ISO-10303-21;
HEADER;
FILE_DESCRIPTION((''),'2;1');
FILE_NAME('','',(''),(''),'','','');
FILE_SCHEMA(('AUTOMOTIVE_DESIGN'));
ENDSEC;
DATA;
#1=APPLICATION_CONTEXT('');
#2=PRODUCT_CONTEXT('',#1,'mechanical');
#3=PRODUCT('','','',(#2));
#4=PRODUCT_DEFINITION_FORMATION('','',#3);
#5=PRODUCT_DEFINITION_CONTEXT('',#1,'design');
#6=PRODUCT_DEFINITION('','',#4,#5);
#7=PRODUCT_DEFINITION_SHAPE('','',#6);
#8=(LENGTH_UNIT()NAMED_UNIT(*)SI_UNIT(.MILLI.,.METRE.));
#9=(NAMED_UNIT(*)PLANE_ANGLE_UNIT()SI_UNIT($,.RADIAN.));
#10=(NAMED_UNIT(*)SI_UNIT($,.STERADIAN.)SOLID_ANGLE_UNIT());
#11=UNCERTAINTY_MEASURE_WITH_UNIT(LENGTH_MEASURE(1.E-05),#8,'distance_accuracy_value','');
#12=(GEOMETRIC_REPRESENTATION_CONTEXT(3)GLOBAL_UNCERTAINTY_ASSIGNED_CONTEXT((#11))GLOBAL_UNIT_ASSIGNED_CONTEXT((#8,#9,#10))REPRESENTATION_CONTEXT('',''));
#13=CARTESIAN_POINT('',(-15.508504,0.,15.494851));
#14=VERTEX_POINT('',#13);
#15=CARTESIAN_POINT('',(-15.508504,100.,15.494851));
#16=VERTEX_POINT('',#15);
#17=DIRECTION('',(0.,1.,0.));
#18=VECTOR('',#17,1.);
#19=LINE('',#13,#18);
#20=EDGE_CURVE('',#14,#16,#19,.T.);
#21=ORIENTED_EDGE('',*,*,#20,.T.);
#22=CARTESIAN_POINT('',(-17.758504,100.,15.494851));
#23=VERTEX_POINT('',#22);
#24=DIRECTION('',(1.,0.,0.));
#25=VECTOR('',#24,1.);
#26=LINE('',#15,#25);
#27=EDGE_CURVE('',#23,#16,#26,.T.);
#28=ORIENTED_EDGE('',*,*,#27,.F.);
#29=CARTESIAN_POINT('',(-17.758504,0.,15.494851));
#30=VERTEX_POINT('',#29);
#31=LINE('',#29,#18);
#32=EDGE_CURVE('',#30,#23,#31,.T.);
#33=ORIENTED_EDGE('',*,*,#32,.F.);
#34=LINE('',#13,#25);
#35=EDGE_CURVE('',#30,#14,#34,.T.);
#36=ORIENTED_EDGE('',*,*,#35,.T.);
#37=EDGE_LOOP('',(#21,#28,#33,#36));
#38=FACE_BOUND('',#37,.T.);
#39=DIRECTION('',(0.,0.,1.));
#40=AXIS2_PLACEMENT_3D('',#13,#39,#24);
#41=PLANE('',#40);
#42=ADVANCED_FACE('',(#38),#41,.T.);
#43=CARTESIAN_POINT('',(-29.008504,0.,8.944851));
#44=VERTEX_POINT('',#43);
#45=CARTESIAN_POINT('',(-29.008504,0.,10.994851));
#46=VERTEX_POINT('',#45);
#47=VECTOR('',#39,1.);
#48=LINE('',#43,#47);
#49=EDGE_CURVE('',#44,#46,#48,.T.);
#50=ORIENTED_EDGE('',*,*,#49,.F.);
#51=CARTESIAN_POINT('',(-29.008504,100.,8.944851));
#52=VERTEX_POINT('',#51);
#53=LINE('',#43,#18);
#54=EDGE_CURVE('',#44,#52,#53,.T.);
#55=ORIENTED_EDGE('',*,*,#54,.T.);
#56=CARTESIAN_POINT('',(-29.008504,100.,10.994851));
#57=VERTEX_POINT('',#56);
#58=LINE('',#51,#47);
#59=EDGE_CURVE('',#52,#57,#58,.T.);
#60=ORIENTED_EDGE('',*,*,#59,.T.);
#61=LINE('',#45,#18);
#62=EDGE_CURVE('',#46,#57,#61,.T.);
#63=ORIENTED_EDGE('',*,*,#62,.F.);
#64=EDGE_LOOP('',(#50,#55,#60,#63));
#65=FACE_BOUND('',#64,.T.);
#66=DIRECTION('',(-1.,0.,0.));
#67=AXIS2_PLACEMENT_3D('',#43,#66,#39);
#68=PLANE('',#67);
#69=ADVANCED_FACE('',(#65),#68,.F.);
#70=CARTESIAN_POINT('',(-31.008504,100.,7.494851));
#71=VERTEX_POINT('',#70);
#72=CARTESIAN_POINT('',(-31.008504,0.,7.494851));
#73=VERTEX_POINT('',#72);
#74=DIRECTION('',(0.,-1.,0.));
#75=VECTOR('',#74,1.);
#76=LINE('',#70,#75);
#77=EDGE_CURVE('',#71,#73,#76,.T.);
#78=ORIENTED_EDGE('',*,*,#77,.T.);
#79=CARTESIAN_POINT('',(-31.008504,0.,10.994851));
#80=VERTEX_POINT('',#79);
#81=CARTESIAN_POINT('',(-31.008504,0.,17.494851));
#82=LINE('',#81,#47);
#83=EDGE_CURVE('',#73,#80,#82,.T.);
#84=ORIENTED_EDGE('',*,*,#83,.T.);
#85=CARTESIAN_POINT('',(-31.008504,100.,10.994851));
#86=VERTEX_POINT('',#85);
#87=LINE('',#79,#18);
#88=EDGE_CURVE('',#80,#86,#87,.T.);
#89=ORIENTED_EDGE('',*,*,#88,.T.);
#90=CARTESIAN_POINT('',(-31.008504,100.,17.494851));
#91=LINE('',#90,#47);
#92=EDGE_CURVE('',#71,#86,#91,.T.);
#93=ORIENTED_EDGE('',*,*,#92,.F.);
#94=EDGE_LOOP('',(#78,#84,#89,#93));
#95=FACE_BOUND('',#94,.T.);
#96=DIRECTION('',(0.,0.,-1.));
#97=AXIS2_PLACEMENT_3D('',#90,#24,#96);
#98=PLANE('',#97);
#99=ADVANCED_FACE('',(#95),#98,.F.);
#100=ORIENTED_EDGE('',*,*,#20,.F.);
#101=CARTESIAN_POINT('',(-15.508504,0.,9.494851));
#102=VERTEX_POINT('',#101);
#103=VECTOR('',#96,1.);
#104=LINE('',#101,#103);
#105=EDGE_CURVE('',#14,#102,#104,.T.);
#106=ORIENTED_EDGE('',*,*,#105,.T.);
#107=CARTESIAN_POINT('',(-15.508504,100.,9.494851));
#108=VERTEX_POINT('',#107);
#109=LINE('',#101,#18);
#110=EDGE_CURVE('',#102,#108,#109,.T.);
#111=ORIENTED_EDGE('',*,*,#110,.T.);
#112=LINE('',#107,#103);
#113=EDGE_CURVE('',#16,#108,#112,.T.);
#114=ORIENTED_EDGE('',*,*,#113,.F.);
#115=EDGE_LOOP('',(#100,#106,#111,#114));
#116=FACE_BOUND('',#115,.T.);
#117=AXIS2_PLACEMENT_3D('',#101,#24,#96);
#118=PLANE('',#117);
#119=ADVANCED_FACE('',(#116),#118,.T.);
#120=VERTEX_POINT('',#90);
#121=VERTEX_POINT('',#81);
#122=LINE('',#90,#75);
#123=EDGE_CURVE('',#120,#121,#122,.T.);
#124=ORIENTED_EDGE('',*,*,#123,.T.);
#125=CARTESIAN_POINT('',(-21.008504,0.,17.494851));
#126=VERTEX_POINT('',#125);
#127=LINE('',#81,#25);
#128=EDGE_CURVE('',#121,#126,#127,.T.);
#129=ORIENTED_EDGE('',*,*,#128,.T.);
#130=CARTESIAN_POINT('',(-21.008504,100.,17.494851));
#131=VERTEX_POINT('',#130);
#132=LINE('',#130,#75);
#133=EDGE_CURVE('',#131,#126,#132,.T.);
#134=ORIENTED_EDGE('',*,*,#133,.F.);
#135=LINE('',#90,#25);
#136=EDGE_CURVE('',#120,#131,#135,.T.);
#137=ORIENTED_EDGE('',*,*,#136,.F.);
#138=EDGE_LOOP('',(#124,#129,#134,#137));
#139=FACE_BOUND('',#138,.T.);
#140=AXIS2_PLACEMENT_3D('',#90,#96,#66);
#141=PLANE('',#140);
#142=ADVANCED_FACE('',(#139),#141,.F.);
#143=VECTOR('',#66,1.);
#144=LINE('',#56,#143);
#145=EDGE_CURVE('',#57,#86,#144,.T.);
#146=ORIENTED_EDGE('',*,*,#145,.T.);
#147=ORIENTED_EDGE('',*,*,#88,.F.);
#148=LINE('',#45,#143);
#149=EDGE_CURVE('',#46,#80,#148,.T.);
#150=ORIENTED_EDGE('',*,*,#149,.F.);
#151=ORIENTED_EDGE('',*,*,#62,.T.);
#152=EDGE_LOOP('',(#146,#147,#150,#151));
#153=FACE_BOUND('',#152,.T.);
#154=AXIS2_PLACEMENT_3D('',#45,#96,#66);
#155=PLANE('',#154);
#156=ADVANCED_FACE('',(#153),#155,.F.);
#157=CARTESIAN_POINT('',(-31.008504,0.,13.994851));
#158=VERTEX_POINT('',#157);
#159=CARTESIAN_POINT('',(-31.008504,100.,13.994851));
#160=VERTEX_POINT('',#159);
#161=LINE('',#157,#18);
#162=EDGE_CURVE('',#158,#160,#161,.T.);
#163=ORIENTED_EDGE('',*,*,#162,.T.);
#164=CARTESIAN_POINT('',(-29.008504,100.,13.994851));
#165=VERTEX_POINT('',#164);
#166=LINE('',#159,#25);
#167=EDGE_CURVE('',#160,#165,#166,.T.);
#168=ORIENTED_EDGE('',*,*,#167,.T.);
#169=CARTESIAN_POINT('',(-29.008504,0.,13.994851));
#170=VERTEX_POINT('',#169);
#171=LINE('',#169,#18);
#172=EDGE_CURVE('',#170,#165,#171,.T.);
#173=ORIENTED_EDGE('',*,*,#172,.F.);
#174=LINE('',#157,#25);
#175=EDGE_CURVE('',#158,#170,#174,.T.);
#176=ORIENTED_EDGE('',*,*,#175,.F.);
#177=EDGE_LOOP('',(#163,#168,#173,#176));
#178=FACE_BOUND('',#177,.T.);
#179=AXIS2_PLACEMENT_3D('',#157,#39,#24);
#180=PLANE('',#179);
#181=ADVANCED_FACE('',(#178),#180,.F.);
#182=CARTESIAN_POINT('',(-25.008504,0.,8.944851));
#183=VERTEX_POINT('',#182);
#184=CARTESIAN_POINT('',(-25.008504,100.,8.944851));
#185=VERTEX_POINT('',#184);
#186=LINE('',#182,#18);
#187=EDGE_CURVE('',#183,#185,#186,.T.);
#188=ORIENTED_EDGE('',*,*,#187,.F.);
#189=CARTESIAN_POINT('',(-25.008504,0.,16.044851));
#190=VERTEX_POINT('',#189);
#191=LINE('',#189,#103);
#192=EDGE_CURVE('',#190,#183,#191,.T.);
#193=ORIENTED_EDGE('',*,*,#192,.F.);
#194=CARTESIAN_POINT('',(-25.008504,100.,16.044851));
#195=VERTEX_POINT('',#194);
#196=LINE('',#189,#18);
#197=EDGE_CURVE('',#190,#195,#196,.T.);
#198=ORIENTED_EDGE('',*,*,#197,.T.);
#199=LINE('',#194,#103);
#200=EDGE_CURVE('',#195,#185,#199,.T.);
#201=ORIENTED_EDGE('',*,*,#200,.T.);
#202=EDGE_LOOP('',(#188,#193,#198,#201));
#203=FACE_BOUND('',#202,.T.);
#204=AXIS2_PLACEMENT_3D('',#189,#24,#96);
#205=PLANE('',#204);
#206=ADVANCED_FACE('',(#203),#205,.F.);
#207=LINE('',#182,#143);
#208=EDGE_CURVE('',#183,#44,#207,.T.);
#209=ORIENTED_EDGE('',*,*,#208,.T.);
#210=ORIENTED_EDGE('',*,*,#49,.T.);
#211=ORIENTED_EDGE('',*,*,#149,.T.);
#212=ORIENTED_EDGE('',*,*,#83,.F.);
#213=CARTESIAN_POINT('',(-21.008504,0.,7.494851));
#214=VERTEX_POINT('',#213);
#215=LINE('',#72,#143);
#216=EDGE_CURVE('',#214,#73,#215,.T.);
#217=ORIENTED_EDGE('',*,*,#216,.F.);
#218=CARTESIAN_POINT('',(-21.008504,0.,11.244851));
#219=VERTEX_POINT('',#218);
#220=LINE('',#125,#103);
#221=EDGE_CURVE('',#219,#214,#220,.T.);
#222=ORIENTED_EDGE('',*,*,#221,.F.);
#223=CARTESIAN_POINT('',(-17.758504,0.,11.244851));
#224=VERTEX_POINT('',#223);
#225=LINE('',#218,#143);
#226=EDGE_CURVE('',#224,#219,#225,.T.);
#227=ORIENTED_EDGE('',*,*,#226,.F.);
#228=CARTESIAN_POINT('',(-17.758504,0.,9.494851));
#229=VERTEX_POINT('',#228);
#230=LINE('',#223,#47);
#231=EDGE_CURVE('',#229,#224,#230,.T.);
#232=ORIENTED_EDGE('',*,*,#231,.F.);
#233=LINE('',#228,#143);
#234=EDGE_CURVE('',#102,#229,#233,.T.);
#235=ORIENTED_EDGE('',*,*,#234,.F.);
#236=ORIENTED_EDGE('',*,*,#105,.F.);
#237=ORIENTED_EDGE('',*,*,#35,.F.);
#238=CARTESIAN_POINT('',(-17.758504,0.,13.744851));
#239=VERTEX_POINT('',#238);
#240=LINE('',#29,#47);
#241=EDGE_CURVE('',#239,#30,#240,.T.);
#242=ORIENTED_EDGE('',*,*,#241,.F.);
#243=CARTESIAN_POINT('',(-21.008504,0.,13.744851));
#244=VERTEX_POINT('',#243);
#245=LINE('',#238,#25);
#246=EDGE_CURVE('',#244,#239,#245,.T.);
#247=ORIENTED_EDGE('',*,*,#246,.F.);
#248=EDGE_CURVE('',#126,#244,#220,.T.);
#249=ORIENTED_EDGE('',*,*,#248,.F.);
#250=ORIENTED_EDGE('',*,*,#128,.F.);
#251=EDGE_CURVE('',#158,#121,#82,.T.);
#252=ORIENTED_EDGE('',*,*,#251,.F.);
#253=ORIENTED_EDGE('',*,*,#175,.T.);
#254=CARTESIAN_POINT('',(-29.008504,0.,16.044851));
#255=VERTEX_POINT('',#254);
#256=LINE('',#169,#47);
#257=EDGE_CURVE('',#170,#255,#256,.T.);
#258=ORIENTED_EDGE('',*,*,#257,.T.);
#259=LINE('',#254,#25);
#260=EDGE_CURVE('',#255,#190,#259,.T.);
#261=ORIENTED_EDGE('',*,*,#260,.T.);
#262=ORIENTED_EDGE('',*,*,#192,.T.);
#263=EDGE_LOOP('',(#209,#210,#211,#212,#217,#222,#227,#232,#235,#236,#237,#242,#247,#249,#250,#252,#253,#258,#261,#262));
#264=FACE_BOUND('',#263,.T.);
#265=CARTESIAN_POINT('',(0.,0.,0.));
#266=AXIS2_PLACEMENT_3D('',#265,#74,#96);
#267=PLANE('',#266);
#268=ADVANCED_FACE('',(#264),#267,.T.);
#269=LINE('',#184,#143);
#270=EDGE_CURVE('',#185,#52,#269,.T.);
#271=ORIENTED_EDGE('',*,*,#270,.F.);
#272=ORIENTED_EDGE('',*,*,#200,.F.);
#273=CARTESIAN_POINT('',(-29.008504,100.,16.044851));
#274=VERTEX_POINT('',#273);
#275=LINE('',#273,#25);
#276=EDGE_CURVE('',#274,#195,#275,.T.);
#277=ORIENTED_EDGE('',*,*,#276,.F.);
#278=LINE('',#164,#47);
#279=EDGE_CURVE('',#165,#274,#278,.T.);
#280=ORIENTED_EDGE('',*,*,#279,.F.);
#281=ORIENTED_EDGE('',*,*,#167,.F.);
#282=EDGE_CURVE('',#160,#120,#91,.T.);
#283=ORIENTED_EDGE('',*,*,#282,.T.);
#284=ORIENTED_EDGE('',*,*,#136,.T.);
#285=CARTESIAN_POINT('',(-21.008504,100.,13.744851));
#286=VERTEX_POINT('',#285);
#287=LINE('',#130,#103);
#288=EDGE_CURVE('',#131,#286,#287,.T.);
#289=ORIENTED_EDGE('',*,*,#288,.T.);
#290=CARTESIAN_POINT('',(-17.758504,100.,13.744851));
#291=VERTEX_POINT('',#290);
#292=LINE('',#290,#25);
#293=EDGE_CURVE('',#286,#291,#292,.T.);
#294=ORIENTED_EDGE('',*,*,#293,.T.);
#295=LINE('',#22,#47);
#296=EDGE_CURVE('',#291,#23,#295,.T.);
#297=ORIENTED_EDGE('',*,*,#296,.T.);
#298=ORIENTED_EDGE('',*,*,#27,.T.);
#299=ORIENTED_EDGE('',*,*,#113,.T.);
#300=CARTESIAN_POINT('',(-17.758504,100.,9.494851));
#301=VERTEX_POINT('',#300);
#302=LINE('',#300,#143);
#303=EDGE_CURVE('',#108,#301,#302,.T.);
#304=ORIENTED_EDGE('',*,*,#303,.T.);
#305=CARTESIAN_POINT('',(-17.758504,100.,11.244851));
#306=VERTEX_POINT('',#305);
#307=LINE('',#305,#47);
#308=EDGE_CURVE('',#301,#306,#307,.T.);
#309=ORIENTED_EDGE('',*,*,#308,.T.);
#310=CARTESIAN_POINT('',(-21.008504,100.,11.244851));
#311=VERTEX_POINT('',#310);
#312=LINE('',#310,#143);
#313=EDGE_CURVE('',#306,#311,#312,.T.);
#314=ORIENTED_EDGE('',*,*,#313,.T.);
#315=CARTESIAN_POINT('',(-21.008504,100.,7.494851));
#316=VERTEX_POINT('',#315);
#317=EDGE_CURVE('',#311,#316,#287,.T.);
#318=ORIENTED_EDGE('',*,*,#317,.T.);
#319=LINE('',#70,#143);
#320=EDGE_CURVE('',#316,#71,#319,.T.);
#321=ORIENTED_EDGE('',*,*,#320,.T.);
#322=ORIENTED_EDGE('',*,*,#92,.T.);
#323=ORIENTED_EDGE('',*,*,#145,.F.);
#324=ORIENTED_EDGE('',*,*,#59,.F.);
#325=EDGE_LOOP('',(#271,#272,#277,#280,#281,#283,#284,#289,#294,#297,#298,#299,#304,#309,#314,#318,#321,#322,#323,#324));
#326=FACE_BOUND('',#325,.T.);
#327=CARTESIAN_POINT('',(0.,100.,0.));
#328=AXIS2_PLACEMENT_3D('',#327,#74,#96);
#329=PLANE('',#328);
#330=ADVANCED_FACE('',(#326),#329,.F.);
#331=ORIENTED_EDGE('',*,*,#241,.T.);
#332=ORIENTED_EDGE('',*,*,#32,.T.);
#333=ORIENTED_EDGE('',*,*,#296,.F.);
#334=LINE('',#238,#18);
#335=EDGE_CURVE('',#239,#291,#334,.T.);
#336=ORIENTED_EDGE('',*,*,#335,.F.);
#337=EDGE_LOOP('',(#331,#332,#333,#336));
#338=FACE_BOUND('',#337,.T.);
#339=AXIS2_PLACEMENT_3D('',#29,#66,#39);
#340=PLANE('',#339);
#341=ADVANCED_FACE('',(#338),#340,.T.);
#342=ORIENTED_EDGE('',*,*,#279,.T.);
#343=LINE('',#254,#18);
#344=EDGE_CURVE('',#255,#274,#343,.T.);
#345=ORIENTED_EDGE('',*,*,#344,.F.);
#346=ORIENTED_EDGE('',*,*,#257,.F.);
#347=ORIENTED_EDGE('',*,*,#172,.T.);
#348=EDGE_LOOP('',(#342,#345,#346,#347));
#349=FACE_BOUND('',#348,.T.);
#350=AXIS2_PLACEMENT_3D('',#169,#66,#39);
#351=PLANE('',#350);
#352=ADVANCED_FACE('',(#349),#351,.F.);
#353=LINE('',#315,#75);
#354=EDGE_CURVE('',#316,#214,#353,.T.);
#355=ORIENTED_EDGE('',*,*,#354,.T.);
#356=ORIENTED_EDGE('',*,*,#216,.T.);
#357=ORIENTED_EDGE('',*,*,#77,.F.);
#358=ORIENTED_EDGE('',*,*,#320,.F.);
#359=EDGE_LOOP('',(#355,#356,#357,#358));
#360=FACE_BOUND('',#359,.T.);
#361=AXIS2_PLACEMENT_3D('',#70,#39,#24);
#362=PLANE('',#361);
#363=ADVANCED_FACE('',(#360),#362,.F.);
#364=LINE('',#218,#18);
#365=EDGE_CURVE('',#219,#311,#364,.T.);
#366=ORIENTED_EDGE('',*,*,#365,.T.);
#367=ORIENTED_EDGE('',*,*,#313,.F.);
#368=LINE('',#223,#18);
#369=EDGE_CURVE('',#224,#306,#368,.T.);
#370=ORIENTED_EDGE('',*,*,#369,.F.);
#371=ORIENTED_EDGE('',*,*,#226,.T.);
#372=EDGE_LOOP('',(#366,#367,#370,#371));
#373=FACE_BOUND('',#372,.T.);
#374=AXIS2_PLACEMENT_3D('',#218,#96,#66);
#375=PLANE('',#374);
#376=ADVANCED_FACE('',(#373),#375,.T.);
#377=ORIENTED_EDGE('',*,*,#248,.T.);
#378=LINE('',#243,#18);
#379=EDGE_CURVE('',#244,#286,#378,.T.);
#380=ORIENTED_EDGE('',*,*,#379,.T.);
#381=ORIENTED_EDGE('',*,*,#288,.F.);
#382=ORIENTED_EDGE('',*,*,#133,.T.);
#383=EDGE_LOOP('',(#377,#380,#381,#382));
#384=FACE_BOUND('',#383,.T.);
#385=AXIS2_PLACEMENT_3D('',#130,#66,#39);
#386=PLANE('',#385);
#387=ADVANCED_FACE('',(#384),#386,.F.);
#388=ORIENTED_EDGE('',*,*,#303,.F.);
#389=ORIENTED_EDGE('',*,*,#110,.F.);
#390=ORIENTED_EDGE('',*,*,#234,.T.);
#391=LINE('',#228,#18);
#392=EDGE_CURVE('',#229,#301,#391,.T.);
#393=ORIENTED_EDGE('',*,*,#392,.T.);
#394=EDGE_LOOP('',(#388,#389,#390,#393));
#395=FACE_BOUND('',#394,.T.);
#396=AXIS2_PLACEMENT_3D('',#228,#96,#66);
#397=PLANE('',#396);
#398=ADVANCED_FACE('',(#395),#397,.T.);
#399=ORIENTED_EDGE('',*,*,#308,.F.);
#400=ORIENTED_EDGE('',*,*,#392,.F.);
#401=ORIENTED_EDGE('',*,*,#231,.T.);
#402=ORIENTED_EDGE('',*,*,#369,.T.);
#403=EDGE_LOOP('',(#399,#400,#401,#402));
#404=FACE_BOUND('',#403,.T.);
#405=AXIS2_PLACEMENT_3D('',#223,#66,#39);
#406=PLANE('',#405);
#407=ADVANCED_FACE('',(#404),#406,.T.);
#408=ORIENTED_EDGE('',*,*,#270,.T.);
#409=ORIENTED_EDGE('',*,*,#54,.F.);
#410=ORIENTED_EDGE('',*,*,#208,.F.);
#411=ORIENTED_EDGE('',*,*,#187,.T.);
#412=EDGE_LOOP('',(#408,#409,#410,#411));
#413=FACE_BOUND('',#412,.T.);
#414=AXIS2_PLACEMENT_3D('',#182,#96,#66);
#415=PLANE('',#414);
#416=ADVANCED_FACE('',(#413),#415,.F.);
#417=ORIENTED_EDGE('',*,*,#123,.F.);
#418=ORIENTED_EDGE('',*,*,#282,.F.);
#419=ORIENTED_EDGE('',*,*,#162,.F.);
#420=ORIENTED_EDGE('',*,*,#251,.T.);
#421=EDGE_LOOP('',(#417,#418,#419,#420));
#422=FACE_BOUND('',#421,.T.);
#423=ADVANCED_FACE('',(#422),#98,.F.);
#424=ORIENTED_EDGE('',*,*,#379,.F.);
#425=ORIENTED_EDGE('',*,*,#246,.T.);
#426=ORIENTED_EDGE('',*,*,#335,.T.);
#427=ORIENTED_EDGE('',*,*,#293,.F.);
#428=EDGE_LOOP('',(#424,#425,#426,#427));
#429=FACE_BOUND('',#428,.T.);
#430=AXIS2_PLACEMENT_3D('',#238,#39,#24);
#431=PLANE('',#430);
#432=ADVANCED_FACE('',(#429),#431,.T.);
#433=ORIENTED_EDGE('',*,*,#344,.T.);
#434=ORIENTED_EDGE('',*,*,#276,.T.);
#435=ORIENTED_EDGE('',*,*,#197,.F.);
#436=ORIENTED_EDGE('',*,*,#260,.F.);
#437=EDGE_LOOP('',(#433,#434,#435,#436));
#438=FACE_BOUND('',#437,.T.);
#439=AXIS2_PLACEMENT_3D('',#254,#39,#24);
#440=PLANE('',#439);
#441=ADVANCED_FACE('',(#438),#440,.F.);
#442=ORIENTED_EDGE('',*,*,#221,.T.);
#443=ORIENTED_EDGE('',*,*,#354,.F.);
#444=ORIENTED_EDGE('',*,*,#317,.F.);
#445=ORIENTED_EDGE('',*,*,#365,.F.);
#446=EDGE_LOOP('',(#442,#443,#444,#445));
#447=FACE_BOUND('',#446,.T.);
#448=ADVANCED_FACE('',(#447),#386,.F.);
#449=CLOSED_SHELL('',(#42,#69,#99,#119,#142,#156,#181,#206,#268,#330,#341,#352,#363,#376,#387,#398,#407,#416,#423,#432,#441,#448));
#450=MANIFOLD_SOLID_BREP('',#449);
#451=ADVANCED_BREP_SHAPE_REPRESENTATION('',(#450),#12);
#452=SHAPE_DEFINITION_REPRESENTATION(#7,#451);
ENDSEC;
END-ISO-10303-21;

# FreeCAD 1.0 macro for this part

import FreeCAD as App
import Part
import Sketcher

V = App.Vector

doc = App.newDocument("Part")
body = doc.addObject("PartDesign::Body", "Body")

sketch1 = body.newObject("Sketcher::SketchObject", "Sketch")
sketch1.AttachmentSupport = (doc.getObject("XZ_Plane"), [""])
sketch1.MapMode = "FlatFace"
sketch1.addGeometry([
    Part.LineSegment(V(-31, 7, 0), V(-31, 17, 0)),
    Part.LineSegment(V(-31, 17, 0), V(-21, 17, 0)),
    Part.LineSegment(V(-21, 17, 0), V(-21, 7, 0)),
    Part.LineSegment(V(-21, 7, 0), V(-31, 7, 0)),
], False)
sketch1.addConstraint([
    Sketcher.Constraint("Coincident", 0, 2, 1, 1),
    Sketcher.Constraint("Coincident", 1, 2, 2, 1),
    Sketcher.Constraint("Coincident", 2, 2, 3, 1),
    Sketcher.Constraint("Coincident", 3, 2, 0, 1),
    Sketcher.Constraint("Vertical", 0),
    Sketcher.Constraint("Horizontal", 1),
    Sketcher.Constraint("Vertical", 2),
    Sketcher.Constraint("Horizontal", 3),
    Sketcher.Constraint("Equal", 3, 0),
    Sketcher.Constraint("DistanceX", 1, 1, 1, 2, 10.0),
    Sketcher.Constraint("DistanceY", -1, 1, 0, 2, 17.494851),
    Sketcher.Constraint("DistanceX", 0, 2, -1, 1, 31.008504),
])
pad1 = body.newObject("PartDesign::Pad", "Pad")
pad1.Profile = sketch1
pad1.Length = 100
pad1.Reversed = True

sketch2 = body.newObject("Sketcher::SketchObject", "Sketch001")
sketch2.AttachmentSupport = (doc.getObject("XZ_Plane"), [""])
sketch2.MapMode = "FlatFace"
sketch2.AttachmentOffset = App.Placement(V(0, 0, -100), App.Rotation())
sketch2.addGeometry([
    Part.LineSegment(V(-17.8, 11.2, 0), V(-21, 11.2, 0)),
    Part.LineSegment(V(-21, 11.2, 0), V(-21, 13.7, 0)),
    Part.LineSegment(V(-21, 13.7, 0), V(-17.8, 13.7, 0)),
    Part.LineSegment(V(-17.8, 13.7, 0), V(-17.8, 15.5, 0)),
    Part.LineSegment(V(-17.8, 15.5, 0), V(-15.5, 15.5, 0)),
    Part.LineSegment(V(-15.5, 15.5, 0), V(-15.5, 9.5, 0)),
    Part.LineSegment(V(-15.5, 9.5, 0), V(-17.8, 9.5, 0)),
    Part.LineSegment(V(-17.8, 9.5, 0), V(-17.8, 11.2, 0)),
], False)
sketch2.addConstraint([
    Sketcher.Constraint("Coincident", 0, 2, 1, 1),
    Sketcher.Constraint("Coincident", 1, 2, 2, 1),
    Sketcher.Constraint("Coincident", 2, 2, 3, 1),
    Sketcher.Constraint("Coincident", 3, 2, 4, 1),
    Sketcher.Constraint("Coincident", 4, 2, 5, 1),
    Sketcher.Constraint("Coincident", 5, 2, 6, 1),
    Sketcher.Constraint("Coincident", 6, 2, 7, 1),
    Sketcher.Constraint("Coincident", 7, 2, 0, 1),
    Sketcher.Constraint("Horizontal", 0),
    Sketcher.Constraint("Vertical", 1),
    Sketcher.Constraint("Horizontal", 2),
    Sketcher.Constraint("Vertical", 3),
    Sketcher.Constraint("Horizontal", 4),
    Sketcher.Constraint("Vertical", 5),
    Sketcher.Constraint("Horizontal", 6),
    Sketcher.Constraint("Vertical", 7),
    Sketcher.Constraint("Vertical", 3, 2, 6, 2),
    Sketcher.Constraint("Equal", 3, 7),
    Sketcher.Constraint("DistanceY", 5, 2, 5, 1, 6.0),
    Sketcher.Constraint("DistanceY", 1, 1, 1, 2, 2.5),
    Sketcher.Constraint("DistanceX", 0, 2, 0, 1, 3.25),
    Sketcher.Constraint("DistanceX", 4, 1, 4, 2, 2.25),
    Sketcher.Constraint("DistanceY", -1, 1, 0, 2, 11.244851),
    Sketcher.Constraint("DistanceX", 0, 2, -1, 1, 21.008504),
])
pad2 = body.newObject("PartDesign::Pad", "Pad001")
pad2.Profile = sketch2
pad2.Length = 100

sketch3 = body.newObject("Sketcher::SketchObject", "Sketch002")
sketch3.AttachmentSupport = (doc.getObject("XZ_Plane"), [""])
sketch3.MapMode = "FlatFace"
sketch3.AttachmentOffset = App.Placement(V(0, 0, -100), App.Rotation())
sketch3.addGeometry([
    Part.LineSegment(V(-31, 14, 0), V(-29, 14, 0)),
    Part.LineSegment(V(-29, 14, 0), V(-29, 16, 0)),
    Part.LineSegment(V(-29, 16, 0), V(-25, 16, 0)),
    Part.LineSegment(V(-25, 16, 0), V(-25, 8.9, 0)),
    Part.LineSegment(V(-25, 8.9, 0), V(-29, 8.9, 0)),
    Part.LineSegment(V(-29, 8.9, 0), V(-29, 11, 0)),
    Part.LineSegment(V(-29, 11, 0), V(-31, 11, 0)),
    Part.LineSegment(V(-31, 11, 0), V(-31, 14, 0)),
], False)
sketch3.addConstraint([
    Sketcher.Constraint("Coincident", 0, 2, 1, 1),
    Sketcher.Constraint("Coincident", 1, 2, 2, 1),
    Sketcher.Constraint("Coincident", 2, 2, 3, 1),
    Sketcher.Constraint("Coincident", 3, 2, 4, 1),
    Sketcher.Constraint("Coincident", 4, 2, 5, 1),
    Sketcher.Constraint("Coincident", 5, 2, 6, 1),
    Sketcher.Constraint("Coincident", 6, 2, 7, 1),
    Sketcher.Constraint("Coincident", 7, 2, 0, 1),
    Sketcher.Constraint("Horizontal", 0),
    Sketcher.Constraint("Vertical", 1),
    Sketcher.Constraint("Horizontal", 2),
    Sketcher.Constraint("Vertical", 3),
    Sketcher.Constraint("Horizontal", 4),
    Sketcher.Constraint("Vertical", 5),
    Sketcher.Constraint("Horizontal", 6),
    Sketcher.Constraint("Vertical", 7),
    Sketcher.Constraint("Vertical", 1, 2, 4, 2),
    Sketcher.Constraint("Equal", 1, 5),
    Sketcher.Constraint("DistanceX", 0, 1, 0, 2, 2.0),
    Sketcher.Constraint("DistanceX", 2, 1, 2, 2, 4.0),
    Sketcher.Constraint("DistanceY", 7, 1, 7, 2, 3.0),
    Sketcher.Constraint("DistanceY", 3, 2, 3, 1, 7.1),
    Sketcher.Constraint("DistanceY", -1, 1, 0, 2, 13.994851),
    Sketcher.Constraint("DistanceX", 0, 2, -1, 1, 29.008504),
])
pocket1 = body.newObject("PartDesign::Pocket", "Pocket")
pocket1.Profile = sketch3
pocket1.Length = 100
pocket1.Reversed = True

doc.recompute()
